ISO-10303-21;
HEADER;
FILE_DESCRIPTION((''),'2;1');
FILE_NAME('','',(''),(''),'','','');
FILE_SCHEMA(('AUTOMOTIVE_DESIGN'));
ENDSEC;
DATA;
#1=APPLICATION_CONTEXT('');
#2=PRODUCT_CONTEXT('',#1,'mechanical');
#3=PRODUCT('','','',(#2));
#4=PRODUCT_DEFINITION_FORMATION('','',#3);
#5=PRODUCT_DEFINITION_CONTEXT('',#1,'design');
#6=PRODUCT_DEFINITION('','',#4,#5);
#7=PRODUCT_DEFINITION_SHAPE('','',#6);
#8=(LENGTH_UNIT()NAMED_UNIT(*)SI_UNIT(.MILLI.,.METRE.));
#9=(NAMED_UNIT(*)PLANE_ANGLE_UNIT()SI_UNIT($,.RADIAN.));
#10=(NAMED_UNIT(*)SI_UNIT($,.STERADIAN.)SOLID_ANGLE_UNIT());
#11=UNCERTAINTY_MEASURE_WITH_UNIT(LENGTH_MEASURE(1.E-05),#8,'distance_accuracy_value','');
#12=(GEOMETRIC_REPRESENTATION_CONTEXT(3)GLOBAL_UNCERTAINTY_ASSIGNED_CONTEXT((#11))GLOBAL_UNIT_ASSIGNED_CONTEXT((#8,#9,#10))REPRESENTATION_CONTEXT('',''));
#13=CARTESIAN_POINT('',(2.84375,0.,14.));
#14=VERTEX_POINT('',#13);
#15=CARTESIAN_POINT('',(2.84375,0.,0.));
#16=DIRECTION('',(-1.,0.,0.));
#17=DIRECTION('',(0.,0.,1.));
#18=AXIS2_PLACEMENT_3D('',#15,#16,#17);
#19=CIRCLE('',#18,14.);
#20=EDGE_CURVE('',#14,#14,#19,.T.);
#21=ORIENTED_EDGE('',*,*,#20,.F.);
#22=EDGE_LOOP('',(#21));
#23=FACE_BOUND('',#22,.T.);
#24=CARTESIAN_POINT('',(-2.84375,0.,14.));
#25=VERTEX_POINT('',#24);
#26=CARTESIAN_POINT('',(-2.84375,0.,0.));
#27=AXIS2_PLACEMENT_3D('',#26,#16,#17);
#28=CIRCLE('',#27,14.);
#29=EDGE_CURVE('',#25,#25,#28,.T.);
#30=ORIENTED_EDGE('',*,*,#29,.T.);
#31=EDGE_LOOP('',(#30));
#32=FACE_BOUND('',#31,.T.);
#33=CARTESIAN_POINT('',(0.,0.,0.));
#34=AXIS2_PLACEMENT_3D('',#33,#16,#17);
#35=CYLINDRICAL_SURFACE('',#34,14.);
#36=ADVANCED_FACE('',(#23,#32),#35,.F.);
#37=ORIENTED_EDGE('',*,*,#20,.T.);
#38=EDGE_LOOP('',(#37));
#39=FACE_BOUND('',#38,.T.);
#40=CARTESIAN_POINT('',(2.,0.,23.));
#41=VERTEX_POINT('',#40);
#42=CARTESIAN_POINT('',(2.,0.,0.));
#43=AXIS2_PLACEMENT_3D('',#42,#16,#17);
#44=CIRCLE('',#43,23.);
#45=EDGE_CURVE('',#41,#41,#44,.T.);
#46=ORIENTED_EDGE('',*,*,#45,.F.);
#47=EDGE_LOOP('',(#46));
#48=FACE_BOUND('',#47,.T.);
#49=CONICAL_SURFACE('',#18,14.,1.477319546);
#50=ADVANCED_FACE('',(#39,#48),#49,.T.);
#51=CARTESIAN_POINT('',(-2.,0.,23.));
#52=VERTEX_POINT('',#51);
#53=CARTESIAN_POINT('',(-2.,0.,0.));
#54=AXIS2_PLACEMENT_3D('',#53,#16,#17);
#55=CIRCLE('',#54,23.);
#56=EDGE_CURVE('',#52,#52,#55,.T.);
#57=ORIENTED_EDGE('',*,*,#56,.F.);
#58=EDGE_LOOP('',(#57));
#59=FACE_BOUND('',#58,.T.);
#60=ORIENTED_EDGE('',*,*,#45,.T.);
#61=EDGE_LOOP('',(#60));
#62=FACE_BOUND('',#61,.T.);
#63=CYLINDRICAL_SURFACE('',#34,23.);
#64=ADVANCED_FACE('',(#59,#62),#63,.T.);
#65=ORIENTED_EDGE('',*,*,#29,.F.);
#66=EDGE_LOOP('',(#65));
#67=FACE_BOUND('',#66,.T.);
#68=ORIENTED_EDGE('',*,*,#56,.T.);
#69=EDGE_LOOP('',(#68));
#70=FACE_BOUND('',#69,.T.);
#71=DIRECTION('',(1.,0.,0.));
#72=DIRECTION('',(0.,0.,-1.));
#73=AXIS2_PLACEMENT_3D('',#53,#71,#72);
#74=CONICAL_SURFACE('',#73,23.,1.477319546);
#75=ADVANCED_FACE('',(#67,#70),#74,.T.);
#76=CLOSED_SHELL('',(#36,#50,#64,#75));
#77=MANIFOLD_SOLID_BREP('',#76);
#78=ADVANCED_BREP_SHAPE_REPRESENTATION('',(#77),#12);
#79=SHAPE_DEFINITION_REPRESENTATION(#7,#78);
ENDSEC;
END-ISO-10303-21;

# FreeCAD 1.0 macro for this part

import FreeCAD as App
import Part
import Sketcher
from FreeCAD import Vector


def add_polygon(sketch, points):
    """Adds a closed chain of lines whose ends are joined by coincident constraints."""
    first, n = sketch.GeometryCount, len(points)
    for a, b in zip(points, points[1:] + points[:1]):
        sketch.addGeometry(Part.LineSegment(App.Vector(*a, 0), App.Vector(*b, 0)), False)
    for i in range(n):
        sketch.addConstraint(Sketcher.Constraint("Coincident", first + i, 2, first + (i + 1) % n, 1))

doc = App.newDocument("Part")
params = doc.addObject("Spreadsheet::Sheet", "Params")
for row, (alias, value) in enumerate([
    ("sketch1_width", "4 mm"),
    ("revolution_angle", "360 deg"),
], start=1):
    params.set(f"A{row}", alias)
    params.set(f"B{row}", "=" + value)
    params.setAlias(f"B{row}", alias)

body = doc.addObject("PartDesign::Body", "Body")

# Sketch on XY plane
sketch1 = doc.addObject("Sketcher::SketchObject", "Sketch")
body.addObject(sketch1)
sketch1.AttachmentSupport = (doc.XY_Plane, [""])
sketch1.MapMode = "FlatFace"
add_polygon(sketch1, [(2, 23), (-2, 23), (-2.8, 14), (2.8, 14)])  # lines 0-3
sketch1.addConstraint(Sketcher.Constraint("Horizontal", 0))
sketch1.addConstraint(Sketcher.Constraint("Horizontal", 2))
sketch1.addConstraint(Sketcher.Constraint("Equal", 1, 3))
sketch1.addConstraint(Sketcher.Constraint("DistanceX", 0, 2, 0, 1, 4.0))
sketch1.addConstraint(Sketcher.Constraint("DistanceX", 0, 2, -1, 1, 2.0))
sketch1.addConstraint(Sketcher.Constraint("DistanceY", -1, 1, 0, 2, 23.0))
sketch1.addConstraint(Sketcher.Constraint("DistanceY", -1, 1, 1, 2, 14.0))
sketch1.addConstraint(Sketcher.Constraint("DistanceX", 2, 1, 2, 2, 5.6875))
sketch1.setExpression("Constraints[7]", "Params.sketch1_width")
revolution = doc.addObject("PartDesign::Revolution", "Revolution")
body.addObject(revolution)
revolution.Profile = sketch1
revolution.ReferenceAxis = (sketch1, ["H_Axis"])
revolution.setExpression("Angle", "Params.revolution_angle")

doc.recompute()
